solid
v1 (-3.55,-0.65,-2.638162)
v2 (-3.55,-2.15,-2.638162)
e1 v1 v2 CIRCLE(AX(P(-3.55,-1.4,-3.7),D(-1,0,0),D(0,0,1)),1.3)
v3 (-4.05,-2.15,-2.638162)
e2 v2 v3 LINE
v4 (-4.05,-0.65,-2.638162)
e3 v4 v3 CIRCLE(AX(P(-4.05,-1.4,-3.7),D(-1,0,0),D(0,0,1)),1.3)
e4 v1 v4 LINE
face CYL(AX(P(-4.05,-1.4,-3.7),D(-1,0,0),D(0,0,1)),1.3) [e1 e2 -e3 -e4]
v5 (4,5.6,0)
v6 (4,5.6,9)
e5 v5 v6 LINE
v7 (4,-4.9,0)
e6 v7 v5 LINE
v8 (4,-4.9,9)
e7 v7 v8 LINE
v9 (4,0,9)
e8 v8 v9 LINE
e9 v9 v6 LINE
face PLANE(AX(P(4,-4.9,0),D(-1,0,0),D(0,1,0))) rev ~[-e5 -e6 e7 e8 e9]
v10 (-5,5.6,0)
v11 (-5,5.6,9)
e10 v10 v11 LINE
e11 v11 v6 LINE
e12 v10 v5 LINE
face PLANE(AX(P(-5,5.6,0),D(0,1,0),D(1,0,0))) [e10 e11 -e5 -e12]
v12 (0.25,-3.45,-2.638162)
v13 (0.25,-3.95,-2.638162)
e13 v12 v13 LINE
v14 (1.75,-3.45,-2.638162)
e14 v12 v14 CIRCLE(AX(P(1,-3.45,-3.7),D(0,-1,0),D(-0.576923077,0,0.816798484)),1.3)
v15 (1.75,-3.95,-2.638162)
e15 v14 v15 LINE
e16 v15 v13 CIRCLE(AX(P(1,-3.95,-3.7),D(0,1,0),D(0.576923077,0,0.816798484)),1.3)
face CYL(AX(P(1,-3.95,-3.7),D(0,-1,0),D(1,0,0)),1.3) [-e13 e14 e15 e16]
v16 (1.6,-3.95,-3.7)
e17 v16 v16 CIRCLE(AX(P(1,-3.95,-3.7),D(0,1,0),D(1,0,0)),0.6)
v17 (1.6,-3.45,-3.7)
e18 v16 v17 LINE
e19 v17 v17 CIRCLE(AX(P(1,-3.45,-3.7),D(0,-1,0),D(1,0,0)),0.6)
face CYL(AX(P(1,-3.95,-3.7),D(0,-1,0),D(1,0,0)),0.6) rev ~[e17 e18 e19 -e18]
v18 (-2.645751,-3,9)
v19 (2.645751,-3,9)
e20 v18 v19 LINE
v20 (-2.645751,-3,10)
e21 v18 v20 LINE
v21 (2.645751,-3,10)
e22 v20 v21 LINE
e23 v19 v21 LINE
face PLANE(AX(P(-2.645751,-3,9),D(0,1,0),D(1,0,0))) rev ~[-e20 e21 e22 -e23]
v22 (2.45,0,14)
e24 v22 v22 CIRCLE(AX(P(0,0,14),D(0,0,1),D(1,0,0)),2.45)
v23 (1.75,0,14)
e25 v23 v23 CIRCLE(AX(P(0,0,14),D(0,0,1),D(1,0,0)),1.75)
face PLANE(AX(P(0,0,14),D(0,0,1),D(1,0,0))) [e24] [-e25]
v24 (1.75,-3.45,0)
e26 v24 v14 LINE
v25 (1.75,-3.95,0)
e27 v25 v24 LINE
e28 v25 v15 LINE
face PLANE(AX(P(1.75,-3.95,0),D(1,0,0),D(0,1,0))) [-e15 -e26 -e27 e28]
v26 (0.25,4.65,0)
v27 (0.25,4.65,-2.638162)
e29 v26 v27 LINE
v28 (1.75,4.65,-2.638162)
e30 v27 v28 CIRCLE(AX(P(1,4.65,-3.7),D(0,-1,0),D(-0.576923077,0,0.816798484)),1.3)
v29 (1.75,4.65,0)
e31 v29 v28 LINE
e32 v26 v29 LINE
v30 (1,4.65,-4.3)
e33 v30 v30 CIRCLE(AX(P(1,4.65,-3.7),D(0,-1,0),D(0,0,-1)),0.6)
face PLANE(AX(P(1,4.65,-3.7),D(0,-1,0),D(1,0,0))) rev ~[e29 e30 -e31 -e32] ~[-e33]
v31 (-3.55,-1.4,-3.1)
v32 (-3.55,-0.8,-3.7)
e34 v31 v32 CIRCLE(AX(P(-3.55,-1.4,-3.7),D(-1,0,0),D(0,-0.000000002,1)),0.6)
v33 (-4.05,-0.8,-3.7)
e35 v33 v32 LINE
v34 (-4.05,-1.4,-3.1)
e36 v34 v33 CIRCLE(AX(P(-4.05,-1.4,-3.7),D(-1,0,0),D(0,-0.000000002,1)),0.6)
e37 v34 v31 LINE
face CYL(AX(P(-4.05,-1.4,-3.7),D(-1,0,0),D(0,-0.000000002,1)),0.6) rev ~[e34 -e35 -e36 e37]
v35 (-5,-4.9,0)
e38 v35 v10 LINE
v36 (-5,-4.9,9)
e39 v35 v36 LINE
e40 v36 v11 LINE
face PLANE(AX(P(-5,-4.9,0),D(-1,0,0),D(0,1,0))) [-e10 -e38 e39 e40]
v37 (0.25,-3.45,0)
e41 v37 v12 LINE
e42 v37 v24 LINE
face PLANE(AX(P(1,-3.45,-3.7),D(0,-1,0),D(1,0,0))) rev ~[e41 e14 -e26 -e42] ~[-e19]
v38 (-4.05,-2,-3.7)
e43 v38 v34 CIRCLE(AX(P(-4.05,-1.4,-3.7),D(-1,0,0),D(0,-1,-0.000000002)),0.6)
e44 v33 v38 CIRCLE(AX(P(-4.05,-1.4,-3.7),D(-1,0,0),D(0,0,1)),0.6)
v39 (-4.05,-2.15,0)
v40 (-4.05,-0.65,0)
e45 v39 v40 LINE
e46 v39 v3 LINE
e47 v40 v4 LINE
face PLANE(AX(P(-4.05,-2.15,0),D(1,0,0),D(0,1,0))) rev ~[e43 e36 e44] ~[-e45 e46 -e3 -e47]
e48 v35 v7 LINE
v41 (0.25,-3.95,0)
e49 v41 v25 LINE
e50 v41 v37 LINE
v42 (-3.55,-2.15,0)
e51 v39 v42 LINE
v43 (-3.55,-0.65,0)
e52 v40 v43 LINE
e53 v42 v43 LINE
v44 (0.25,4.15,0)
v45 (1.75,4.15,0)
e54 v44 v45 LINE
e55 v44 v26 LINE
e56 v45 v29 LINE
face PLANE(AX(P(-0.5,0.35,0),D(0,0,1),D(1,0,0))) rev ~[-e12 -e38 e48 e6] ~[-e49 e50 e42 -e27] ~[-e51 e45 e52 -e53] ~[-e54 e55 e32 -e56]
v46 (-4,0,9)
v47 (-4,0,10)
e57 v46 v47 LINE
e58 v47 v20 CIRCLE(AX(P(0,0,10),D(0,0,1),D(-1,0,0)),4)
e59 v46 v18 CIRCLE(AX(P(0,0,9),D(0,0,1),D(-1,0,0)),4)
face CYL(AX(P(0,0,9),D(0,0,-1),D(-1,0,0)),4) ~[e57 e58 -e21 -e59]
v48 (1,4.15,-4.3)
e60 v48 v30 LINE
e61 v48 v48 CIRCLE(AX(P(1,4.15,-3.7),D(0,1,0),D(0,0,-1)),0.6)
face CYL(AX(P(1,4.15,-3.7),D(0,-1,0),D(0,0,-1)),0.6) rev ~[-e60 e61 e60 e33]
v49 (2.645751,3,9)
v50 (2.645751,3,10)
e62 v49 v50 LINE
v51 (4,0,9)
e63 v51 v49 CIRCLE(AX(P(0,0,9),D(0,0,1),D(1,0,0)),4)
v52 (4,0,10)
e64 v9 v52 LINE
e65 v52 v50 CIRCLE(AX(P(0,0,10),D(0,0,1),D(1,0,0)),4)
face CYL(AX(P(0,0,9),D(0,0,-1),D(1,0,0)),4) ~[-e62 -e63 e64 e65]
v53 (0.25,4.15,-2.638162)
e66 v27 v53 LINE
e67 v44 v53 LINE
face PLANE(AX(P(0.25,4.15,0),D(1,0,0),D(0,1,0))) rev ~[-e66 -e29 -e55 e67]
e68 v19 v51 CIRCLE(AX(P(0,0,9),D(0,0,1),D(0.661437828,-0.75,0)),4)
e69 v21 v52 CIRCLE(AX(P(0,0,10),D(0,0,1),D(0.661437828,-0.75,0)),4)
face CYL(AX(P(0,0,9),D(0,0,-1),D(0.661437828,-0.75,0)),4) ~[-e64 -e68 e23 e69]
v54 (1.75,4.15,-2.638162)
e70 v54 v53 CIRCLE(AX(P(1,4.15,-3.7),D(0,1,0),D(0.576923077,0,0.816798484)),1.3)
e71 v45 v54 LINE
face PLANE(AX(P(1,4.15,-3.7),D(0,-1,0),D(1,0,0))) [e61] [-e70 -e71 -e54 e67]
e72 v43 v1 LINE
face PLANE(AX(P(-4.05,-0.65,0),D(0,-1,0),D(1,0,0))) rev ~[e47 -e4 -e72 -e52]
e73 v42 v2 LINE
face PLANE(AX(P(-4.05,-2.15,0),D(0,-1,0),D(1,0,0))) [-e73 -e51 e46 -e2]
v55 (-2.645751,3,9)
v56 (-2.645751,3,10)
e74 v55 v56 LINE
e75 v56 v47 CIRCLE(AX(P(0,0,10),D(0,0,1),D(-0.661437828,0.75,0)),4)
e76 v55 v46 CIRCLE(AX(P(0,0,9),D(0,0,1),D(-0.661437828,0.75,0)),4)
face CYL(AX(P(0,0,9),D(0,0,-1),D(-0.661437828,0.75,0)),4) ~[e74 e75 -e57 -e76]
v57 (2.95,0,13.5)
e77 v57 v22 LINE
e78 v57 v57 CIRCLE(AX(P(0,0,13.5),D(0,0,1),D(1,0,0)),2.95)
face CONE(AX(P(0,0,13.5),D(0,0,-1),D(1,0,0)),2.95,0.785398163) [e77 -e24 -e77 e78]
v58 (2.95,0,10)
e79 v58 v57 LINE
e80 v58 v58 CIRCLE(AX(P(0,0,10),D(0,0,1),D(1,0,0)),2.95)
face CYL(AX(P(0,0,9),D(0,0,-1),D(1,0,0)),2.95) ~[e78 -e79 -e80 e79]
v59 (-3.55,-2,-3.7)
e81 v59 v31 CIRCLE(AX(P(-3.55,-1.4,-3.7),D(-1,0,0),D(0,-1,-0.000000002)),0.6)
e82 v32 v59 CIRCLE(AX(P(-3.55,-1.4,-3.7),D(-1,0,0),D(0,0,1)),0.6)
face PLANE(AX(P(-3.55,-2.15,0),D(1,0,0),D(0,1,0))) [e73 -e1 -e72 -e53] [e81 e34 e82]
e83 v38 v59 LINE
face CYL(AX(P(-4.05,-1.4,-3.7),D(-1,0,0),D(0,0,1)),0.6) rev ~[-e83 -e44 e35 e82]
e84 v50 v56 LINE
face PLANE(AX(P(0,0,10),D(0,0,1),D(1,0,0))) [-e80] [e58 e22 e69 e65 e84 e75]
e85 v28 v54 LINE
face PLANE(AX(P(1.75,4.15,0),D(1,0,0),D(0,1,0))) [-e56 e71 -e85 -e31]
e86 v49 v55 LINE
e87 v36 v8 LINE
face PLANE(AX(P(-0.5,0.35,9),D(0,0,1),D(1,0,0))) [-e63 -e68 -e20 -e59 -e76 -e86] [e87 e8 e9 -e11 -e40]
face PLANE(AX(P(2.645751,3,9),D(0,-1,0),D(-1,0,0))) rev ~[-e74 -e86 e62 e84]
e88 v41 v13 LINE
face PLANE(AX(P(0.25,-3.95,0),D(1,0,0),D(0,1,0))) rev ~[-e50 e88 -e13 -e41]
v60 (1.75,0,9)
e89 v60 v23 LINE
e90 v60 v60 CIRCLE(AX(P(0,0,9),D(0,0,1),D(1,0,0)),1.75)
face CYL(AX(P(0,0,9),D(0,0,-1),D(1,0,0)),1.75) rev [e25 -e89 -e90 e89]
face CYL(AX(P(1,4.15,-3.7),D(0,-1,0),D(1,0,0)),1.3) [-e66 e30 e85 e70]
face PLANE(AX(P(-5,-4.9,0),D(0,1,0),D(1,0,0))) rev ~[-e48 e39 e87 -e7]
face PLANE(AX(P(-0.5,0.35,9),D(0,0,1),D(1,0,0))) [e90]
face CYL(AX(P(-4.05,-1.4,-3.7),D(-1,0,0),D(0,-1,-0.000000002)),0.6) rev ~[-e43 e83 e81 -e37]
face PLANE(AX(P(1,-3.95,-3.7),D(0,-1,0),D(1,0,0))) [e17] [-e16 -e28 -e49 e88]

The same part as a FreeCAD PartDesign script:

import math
import FreeCAD as App
import Part
import Sketcher
Q = App.Units.Quantity


def edges_at(feature, points):
    """Names of the edges that pass closest to the given points."""
    edges = feature.Shape.Edges
    near = lambda p: min(range(len(edges)), key=lambda i: edges[i].distToShape(Part.Vertex(*p))[0])
    return sorted({f"Edge{near(p) + 1}" for p in points})


def add_polygon(sketch, points):
    """Adds a closed chain of lines whose ends are joined by coincident constraints."""
    first, n = sketch.GeometryCount, len(points)
    for a, b in zip(points, points[1:] + points[:1]):
        sketch.addGeometry(Part.LineSegment(App.Vector(*a, 0), App.Vector(*b, 0)), False)
    for i in range(n):
        sketch.addConstraint(Sketcher.Constraint("Coincident", first + i, 2, first + (i + 1) % n, 1))

doc = App.newDocument("Part")
body = doc.addObject("PartDesign::Body", "Body")

# Sketch on XY plane
sketch1 = body.newObject("Sketcher::SketchObject", "Sketch")
sketch1.AttachmentSupport = (doc.getObject("XY_Plane"), [""])
sketch1.MapMode = "FlatFace"
add_polygon(sketch1, [(-5, 6), (-5, -5), (4, -5), (4, 6)])  # lines 0-3
sketch1.addConstraint([
    Sketcher.Constraint("Vertical", 0),
    Sketcher.Constraint("Horizontal", 1),
    Sketcher.Constraint("Vertical", 2),
    Sketcher.Constraint("Horizontal", 3),
    Sketcher.Constraint("DistanceX", 1, 1, 1, 2, Q("9 mm")),
    Sketcher.Constraint("DistanceY", 0, 2, 0, 1, Q("10.5 mm")),
    Sketcher.Constraint("DistanceX", 0, 2, -1, 1, Q("5 mm")),
    Sketcher.Constraint("DistanceY", 0, 2, -1, 1, Q("4.9 mm")),
])
pad1 = body.newObject("PartDesign::Pad", "Pad")
pad1.Profile = sketch1
pad1.Length = 9

# Sketch on XY plane
sketch2 = body.newObject("Sketcher::SketchObject", "Sketch001")
sketch2.AttachmentSupport = (doc.getObject("XY_Plane"), [""])
sketch2.MapMode = "FlatFace"
sketch2.AttachmentOffset = App.Placement(App.Vector(0, 0, 9), App.Rotation())
sketch2.addGeometry([
    Part.ArcOfCircle(Part.Circle(App.Vector(0, 0, 0), App.Vector(0, 0, 1), 4), math.radians(180), math.radians(229)),  # 0
    Part.LineSegment(App.Vector(-2.6, -3, 0), App.Vector(2.6, -3, 0)),  # 1
    Part.ArcOfCircle(Part.Circle(App.Vector(0, 0, 0), App.Vector(0, 0, 1), 4), math.radians(-49), math.radians(0)),  # 2
    Part.ArcOfCircle(Part.Circle(App.Vector(0, 0, 0), App.Vector(0, 0, 1), 4), math.radians(0), math.radians(49)),  # 3
    Part.LineSegment(App.Vector(2.6, 3, 0), App.Vector(-2.6, 3, 0)),  # 4
    Part.ArcOfCircle(Part.Circle(App.Vector(0, 0, 0), App.Vector(0, 0, 1), 4), math.radians(131), math.radians(180)),  # 5
    Part.Circle(App.Vector(0, 0, 0), App.Vector(0, 0, 1), 3),  # 6
], False)
sketch2.addConstraint([
    Sketcher.Constraint("Coincident", 0, 2, 1, 1),
    Sketcher.Constraint("Coincident", 1, 2, 2, 1),
    Sketcher.Constraint("Tangent", 2, 2, 3, 1),
    Sketcher.Constraint("Coincident", 3, 2, 4, 1),
    Sketcher.Constraint("Coincident", 4, 2, 5, 1),
    Sketcher.Constraint("Tangent", 5, 2, 0, 1),
    Sketcher.Constraint("Horizontal", 1),
    Sketcher.Constraint("Horizontal", 4),
    Sketcher.Constraint("Coincident", 0, 3, -1, 1),
    Sketcher.Constraint("Coincident", 2, 3, -1, 1),
    Sketcher.Constraint("Coincident", 6, 3, -1, 1),
    Sketcher.Constraint("Equal", 0, 2),
    Sketcher.Constraint("Equal", 2, 3),
    Sketcher.Constraint("Equal", 3, 5),
    Sketcher.Constraint("PointOnObject", 2, 2, -1),
    Sketcher.Constraint("PointOnObject", 5, 2, -1),
    Sketcher.Constraint("Vertical", 1, 2, 3, 2),
    Sketcher.Constraint("Radius", 0, Q("4 mm")),
    Sketcher.Constraint("Diameter", 6, Q("5.9 mm")),
    Sketcher.Constraint("DistanceY", 0, 2, -1, 1, Q("3 mm")),
])
pad2 = body.newObject("PartDesign::Pad", "Pad001")
pad2.Profile = sketch2
pad2.Length = 1

# Sketch on XY plane
sketch3 = body.newObject("Sketcher::SketchObject", "Sketch002")
sketch3.AttachmentSupport = (doc.getObject("XY_Plane"), [""])
sketch3.MapMode = "FlatFace"
sketch3.AttachmentOffset = App.Placement(App.Vector(0, 0, 9), App.Rotation())
sketch3.addGeometry([
    Part.Circle(App.Vector(0, 0, 0), App.Vector(0, 0, 1), 3),
    Part.Circle(App.Vector(0, 0, 0), App.Vector(0, 0, 1), 1.8),
], False)
sketch3.addConstraint([
    Sketcher.Constraint("Coincident", 0, 3, -1, 1),
    Sketcher.Constraint("Coincident", 1, 3, -1, 1),
    Sketcher.Constraint("Diameter", 0, Q("5.9 mm")),
    Sketcher.Constraint("Diameter", 1, Q("3.5 mm")),
])
pad3 = body.newObject("PartDesign::Pad", "Pad002")
pad3.Profile = sketch3
pad3.Length = 5

# Sketch on XY plane
sketch4 = body.newObject("Sketcher::SketchObject", "Sketch003")
sketch4.AttachmentSupport = (doc.getObject("XY_Plane"), [""])
sketch4.MapMode = "FlatFace"
add_polygon(sketch4, [(0.2, -3.5), (0.2, -4), (1.8, -4), (1.8, -3.5)])  # lines 0-3
add_polygon(sketch4, [(-4, -0.7), (-4, -2.1), (-3.5, -2.1), (-3.5, -0.7)])  # lines 4-7
add_polygon(sketch4, [(0.2, 4.7), (0.2, 4.2), (1.8, 4.2), (1.8, 4.7)])  # lines 8-11
sketch4.addConstraint([
    Sketcher.Constraint("Vertical", 0),
    Sketcher.Constraint("Horizontal", 1),
    Sketcher.Constraint("Vertical", 2),
    Sketcher.Constraint("Horizontal", 3),
    Sketcher.Constraint("Vertical", 4),
    Sketcher.Constraint("Horizontal", 5),
    Sketcher.Constraint("Vertical", 6),
    Sketcher.Constraint("Horizontal", 7),
    Sketcher.Constraint("Vertical", 8),
    Sketcher.Constraint("Horizontal", 9),
    Sketcher.Constraint("Vertical", 10),
    Sketcher.Constraint("Horizontal", 11),
    Sketcher.Constraint("Vertical", 3, 2, 8, 2),
    Sketcher.Constraint("Vertical", 2, 2, 9, 2),
    Sketcher.Constraint("Equal", 7, 0),
    Sketcher.Constraint("Equal", 11, 4),
    Sketcher.Constraint("Equal", 2, 8),
    Sketcher.Constraint("DistanceX", 1, 1, 1, 2, Q("1.5 mm")),
    Sketcher.Constraint("DistanceX", 5, 1, 5, 2, Q("0.5 mm")),
    Sketcher.Constraint("DistanceX", 4, 2, 3, 2, Q("4.3 mm")),
    Sketcher.Constraint("DistanceY", 3, 2, 4, 2, Q("1.3 mm")),
    Sketcher.Constraint("DistanceY", 6, 2, 8, 2, Q("4.8 mm")),
    Sketcher.Constraint("DistanceX", -1, 1, 0, 2, Q("0.25 mm")),
    Sketcher.Constraint("DistanceY", 0, 2, -1, 1, Q("3.95 mm")),
])
pad4 = body.newObject("PartDesign::Pad", "Pad003")
pad4.Profile = sketch4
pad4.Length = 3.7
pad4.Reversed = True

# Sketch on XZ plane
sketch5 = body.newObject("Sketcher::SketchObject", "Sketch004")
sketch5.AttachmentSupport = (doc.getObject("XZ_Plane"), [""])
sketch5.MapMode = "FlatFace"
sketch5.AttachmentOffset = App.Placement(App.Vector(0, 0, 3.95), App.Rotation())
sketch5.addGeometry([
    Part.Circle(App.Vector(1, -3.7, 0), App.Vector(0, 0, 1), 1.3),
    Part.Circle(App.Vector(1, -3.7, 0), App.Vector(0, 0, 1), 0.6),
], False)
sketch5.addConstraint([
    Sketcher.Constraint("Coincident", 1, 3, 0, 3),
    Sketcher.Constraint("Diameter", 0, Q("2.6 mm")),
    Sketcher.Constraint("Diameter", 1, Q("1.2 mm")),
    Sketcher.Constraint("DistanceX", -1, 1, 0, 3, Q("1 mm")),
    Sketcher.Constraint("DistanceY", 0, 3, -1, 1, Q("3.7 mm")),
])
pad5 = body.newObject("PartDesign::Pad", "Pad004")
pad5.Profile = sketch5
pad5.Length = 0.5
pad5.Reversed = True

# Sketch on XZ plane
sketch6 = body.newObject("Sketcher::SketchObject", "Sketch005")
sketch6.AttachmentSupport = (doc.getObject("XZ_Plane"), [""])
sketch6.MapMode = "FlatFace"
sketch6.AttachmentOffset = App.Placement(App.Vector(0, 0, 3.95), App.Rotation())
sketch6.addGeometry(Part.Circle(App.Vector(1, -3.7, 0), App.Vector(0, 0, 1), 0.6), False)
sketch6.addConstraint([
    Sketcher.Constraint("Diameter", 0, Q("1.2 mm")),
    Sketcher.Constraint("DistanceX", -1, 1, 0, 3, Q("1 mm")),
    Sketcher.Constraint("DistanceY", 0, 3, -1, 1, Q("3.7 mm")),
])
pocket1 = body.newObject("PartDesign::Pocket", "Pocket")
pocket1.Profile = sketch6
pocket1.Length = 3.7

# Sketch on XZ plane
sketch7 = body.newObject("Sketcher::SketchObject", "Sketch006")
sketch7.AttachmentSupport = (doc.getObject("XZ_Plane"), [""])
sketch7.MapMode = "FlatFace"
sketch7.AttachmentOffset = App.Placement(App.Vector(0, 0, -4.15), App.Rotation())
sketch7.addGeometry(Part.Circle(App.Vector(1, -3.7, 0), App.Vector(0, 0, 1), 0.6), False)
sketch7.addConstraint([
    Sketcher.Constraint("Diameter", 0, Q("1.2 mm")),
    Sketcher.Constraint("DistanceX", -1, 1, 0, 3, Q("1 mm")),
    Sketcher.Constraint("DistanceY", 0, 3, -1, 1, Q("3.7 mm")),
])
pocket2 = body.newObject("PartDesign::Pocket", "Pocket001")
pocket2.Profile = sketch7
pocket2.Length = 3.7

# Sketch on XZ plane
sketch8 = body.newObject("Sketcher::SketchObject", "Sketch007")
sketch8.AttachmentSupport = (doc.getObject("XZ_Plane"), [""])
sketch8.MapMode = "FlatFace"
sketch8.AttachmentOffset = App.Placement(App.Vector(0, 0, -4.15), App.Rotation())
sketch8.addGeometry([
    Part.Circle(App.Vector(1, -3.7, 0), App.Vector(0, 0, 1), 1.3),
    Part.Circle(App.Vector(1, -3.7, 0), App.Vector(0, 0, 1), 0.6),
], False)
sketch8.addConstraint([
    Sketcher.Constraint("Coincident", 1, 3, 0, 3),
    Sketcher.Constraint("Diameter", 0, Q("2.6 mm")),
    Sketcher.Constraint("Diameter", 1, Q("1.2 mm")),
    Sketcher.Constraint("DistanceX", -1, 1, 0, 3, Q("1 mm")),
    Sketcher.Constraint("DistanceY", 0, 3, -1, 1, Q("3.7 mm")),
])
pad6 = body.newObject("PartDesign::Pad", "Pad005")
pad6.Profile = sketch8
pad6.Length = 0.5
pad6.Reversed = True

# Sketch on YZ plane
sketch9 = body.newObject("Sketcher::SketchObject", "Sketch008")
sketch9.AttachmentSupport = (doc.getObject("YZ_Plane"), [""])
sketch9.MapMode = "FlatFace"
sketch9.AttachmentOffset = App.Placement(App.Vector(0, 0, -4.05), App.Rotation())
sketch9.addGeometry([
    Part.ArcOfCircle(Part.Circle(App.Vector(-1.4, -3.7, 0), App.Vector(0, 0, 1), 0.6), math.radians(90), math.radians(180)),
    Part.ArcOfCircle(Part.Circle(App.Vector(-1.4, -3.7, 0), App.Vector(0, 0, 1), 0.6), math.radians(0), math.radians(90)),
    Part.ArcOfCircle(Part.Circle(App.Vector(-1.4, -3.7, 0), App.Vector(0, 0, 1), 0.6), math.radians(180), math.radians(360)),
], False)
sketch9.addConstraint([
    Sketcher.Constraint("Tangent", 0, 1, 1, 2),
    Sketcher.Constraint("Tangent", 1, 1, 2, 2),
    Sketcher.Constraint("Tangent", 2, 1, 0, 2),
    Sketcher.Constraint("Horizontal", 2, 3, 1, 1),
    Sketcher.Constraint("Horizontal", 1, 1, 2, 1),
    Sketcher.Constraint("Vertical", 2, 3, 0, 1),
    Sketcher.Constraint("Radius", 0, Q("0.6 mm")),
    Sketcher.Constraint("DistanceX", 2, 1, -1, 1, Q("2 mm")),
    Sketcher.Constraint("DistanceY", 0, 3, -1, 1, Q("3.7 mm")),
])
pocket3 = body.newObject("PartDesign::Pocket", "Pocket002")
pocket3.Profile = sketch9
pocket3.Length = 3.7
pocket3.Reversed = True

# Sketch on YZ plane
sketch10 = body.newObject("Sketcher::SketchObject", "Sketch009")
sketch10.AttachmentSupport = (doc.getObject("YZ_Plane"), [""])
sketch10.MapMode = "FlatFace"
sketch10.AttachmentOffset = App.Placement(App.Vector(0, 0, -4.05), App.Rotation())
sketch10.addGeometry([
    Part.Circle(App.Vector(-1.4, -3.7, 0), App.Vector(0, 0, 1), 1.3),
    Part.Circle(App.Vector(-1.4, -3.7, 0), App.Vector(0, 0, 1), 0.6),
], False)
sketch10.addConstraint([
    Sketcher.Constraint("Coincident", 1, 3, 0, 3),
    Sketcher.Constraint("Diameter", 0, Q("2.6 mm")),
    Sketcher.Constraint("Diameter", 1, Q("1.2 mm")),
    Sketcher.Constraint("DistanceX", 0, 3, -1, 1, Q("1.4 mm")),
    Sketcher.Constraint("DistanceY", 0, 3, -1, 1, Q("3.7 mm")),
])
pad7 = body.newObject("PartDesign::Pad", "Pad006")
pad7.Profile = sketch10
pad7.Length = 0.5
doc.recompute()

chamfer = body.newObject("PartDesign::Chamfer", "Chamfer")
chamfer.Base = (pad7, edges_at(pad7, [(-2.95, 0, 14)]))
chamfer.Size = 0.5

doc.recompute()
